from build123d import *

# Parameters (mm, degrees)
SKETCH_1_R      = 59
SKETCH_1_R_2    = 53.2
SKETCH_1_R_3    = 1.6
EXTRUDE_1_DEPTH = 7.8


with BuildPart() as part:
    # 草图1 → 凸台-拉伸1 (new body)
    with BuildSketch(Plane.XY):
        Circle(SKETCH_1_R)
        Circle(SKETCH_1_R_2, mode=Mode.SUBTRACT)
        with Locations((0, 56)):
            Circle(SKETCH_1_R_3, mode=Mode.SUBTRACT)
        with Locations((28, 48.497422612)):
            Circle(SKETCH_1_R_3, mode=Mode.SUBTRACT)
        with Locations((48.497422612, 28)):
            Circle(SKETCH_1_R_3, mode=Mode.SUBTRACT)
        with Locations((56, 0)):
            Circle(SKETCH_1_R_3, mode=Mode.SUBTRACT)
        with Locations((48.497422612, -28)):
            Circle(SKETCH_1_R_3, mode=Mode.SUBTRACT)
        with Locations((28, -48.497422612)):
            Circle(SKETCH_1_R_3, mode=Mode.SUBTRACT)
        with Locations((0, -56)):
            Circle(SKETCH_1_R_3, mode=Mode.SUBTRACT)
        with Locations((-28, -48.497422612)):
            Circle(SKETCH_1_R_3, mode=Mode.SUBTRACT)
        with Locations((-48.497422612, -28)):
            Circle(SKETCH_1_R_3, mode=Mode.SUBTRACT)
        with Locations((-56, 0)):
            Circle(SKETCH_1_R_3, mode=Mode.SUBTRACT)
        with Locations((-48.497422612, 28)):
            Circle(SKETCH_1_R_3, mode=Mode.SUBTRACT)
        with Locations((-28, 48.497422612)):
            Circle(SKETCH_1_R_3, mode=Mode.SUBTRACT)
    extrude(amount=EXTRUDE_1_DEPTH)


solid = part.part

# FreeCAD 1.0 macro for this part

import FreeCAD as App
import Part
import Sketcher
from FreeCAD import Vector
Q = App.Units.Quantity

doc = App.newDocument("Part")
body = doc.addObject("PartDesign::Body", "Body")

sketch1 = body.newObject("Sketcher::SketchObject", "Sketch")
sketch1.AttachmentSupport = (doc.getObject("XY_Plane"), [""])
sketch1.MapMode = "FlatFace"
sketch1.addGeometry([
    Part.Circle(Vector(0, 0, 0), Vector(0, 0, 1), 59),
    Part.Circle(Vector(-28, -48.5, 0), Vector(0, 0, 1), 1.6),
    Part.Circle(Vector(-48.5, -28, 0), Vector(0, 0, 1), 1.6),
    Part.Circle(Vector(0, -56, 0), Vector(0, 0, 1), 1.6),
    Part.Circle(Vector(28, -48.5, 0), Vector(0, 0, 1), 1.6),
    Part.Circle(Vector(48.5, -28, 0), Vector(0, 0, 1), 1.6),
    Part.Circle(Vector(-56, 0, 0), Vector(0, 0, 1), 1.6),
    Part.Circle(Vector(-48.5, 28, 0), Vector(0, 0, 1), 1.6),
    Part.Circle(Vector(-28, 48.5, 0), Vector(0, 0, 1), 1.6),
    Part.Circle(Vector(0, 0, 0), Vector(0, 0, 1), 53.2),
    Part.Circle(Vector(56, 0, 0), Vector(0, 0, 1), 1.6),
    Part.Circle(Vector(48.5, 28, 0), Vector(0, 0, 1), 1.6),
    Part.Circle(Vector(0, 56, 0), Vector(0, 0, 1), 1.6),
    Part.Circle(Vector(28, 48.5, 0), Vector(0, 0, 1), 1.6),
], False)
sketch1.addConstraint([
    Sketcher.Constraint("Coincident", 0, 3, -1, 1),
    Sketcher.Constraint("Coincident", 9, 3, -1, 1),
    Sketcher.Constraint("Equal", 1, 2),
    Sketcher.Constraint("Equal", 2, 3),
    Sketcher.Constraint("Equal", 3, 4),
    Sketcher.Constraint("Equal", 4, 5),
    Sketcher.Constraint("Equal", 5, 6),
    Sketcher.Constraint("Equal", 6, 7),
    Sketcher.Constraint("Equal", 7, 8),
    Sketcher.Constraint("Equal", 8, 10),
    Sketcher.Constraint("Equal", 10, 11),
    Sketcher.Constraint("Equal", 11, 12),
    Sketcher.Constraint("Equal", 12, 13),
    Sketcher.Constraint("Symmetric", 5, 3, 7, 3, -1, 1),
    Sketcher.Constraint("Symmetric", 4, 3, 8, 3, -1, 1),
    Sketcher.Constraint("Symmetric", 6, 3, 10, 3, -1, 1),
    Sketcher.Constraint("Symmetric", 2, 3, 11, 3, -1, 1),
    Sketcher.Constraint("Symmetric", 3, 3, 12, 3, -1, 1),
    Sketcher.Constraint("Symmetric", 1, 3, 13, 3, -1, 1),
    Sketcher.Constraint("Symmetric", 1, 3, 4, 3, -2),
    Sketcher.Constraint("Symmetric", 2, 3, 5, 3, -2),
    Sketcher.Constraint("PointOnObject", 3, 3, -2),
    Sketcher.Constraint("PointOnObject", 6, 3, -1),
    Sketcher.Constraint("Diameter", 0, Q("118 mm")),
    Sketcher.Constraint("Diameter", 1, Q("3.2 mm")),
    Sketcher.Constraint("Diameter", 9, Q("106.4 mm")),
    Sketcher.Constraint("DistanceX", 1, 3, -1, 1, Q("28 mm")),
    Sketcher.Constraint("DistanceY", 2, 3, -1, 1, Q("28 mm")),
    Sketcher.Constraint("DistanceY", 3, 3, -1, 1, Q("56 mm")),
    Sketcher.Constraint("DistanceX", 6, 3, -1, 1, Q("56 mm")),
    Sketcher.Constraint("DistanceY", 1, 3, -1, 1, Q("48.497423 mm")),
    Sketcher.Constraint("DistanceX", 2, 3, -1, 1, Q("48.497423 mm")),
])
pad1 = body.newObject("PartDesign::Pad", "Pad")
pad1.Profile = sketch1
pad1.Length = 7.8

doc.recompute()
